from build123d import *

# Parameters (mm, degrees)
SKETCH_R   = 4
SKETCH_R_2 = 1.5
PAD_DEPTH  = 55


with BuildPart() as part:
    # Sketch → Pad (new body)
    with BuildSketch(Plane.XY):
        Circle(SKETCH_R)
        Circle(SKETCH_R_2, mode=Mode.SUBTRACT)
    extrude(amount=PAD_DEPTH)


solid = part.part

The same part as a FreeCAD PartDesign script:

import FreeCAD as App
import Part
import Sketcher

doc = App.newDocument("Part")
params = doc.addObject("Spreadsheet::Sheet", "Params")
for row, (alias, value) in enumerate([
    ("sketch1_diameter", "8 mm"),
    ("sketch1_diameter2", "3 mm"),
    ("pad1_length", "55 mm"),
], start=1):
    params.set(f"A{row}", alias)
    params.set(f"B{row}", "=" + value)
    params.setAlias(f"B{row}", alias)

body = doc.addObject("PartDesign::Body", "Body")

sketch1 = body.newObject("Sketcher::SketchObject", "Sketch")
sketch1.AttachmentSupport = (doc.getObject("XY_Plane"), [""])
sketch1.MapMode = "FlatFace"
sketch1.addGeometry(Part.Circle(App.Vector(0, 0, 0), App.Vector(0, 0, 1), 4), False)
sketch1.addGeometry(Part.Circle(App.Vector(0, 0, 0), App.Vector(0, 0, 1), 1.5), False)
sketch1.addConstraint(Sketcher.Constraint("Coincident", 0, 3, -1, 1))
sketch1.addConstraint(Sketcher.Constraint("Coincident", 1, 3, -1, 1))
sketch1.addConstraint(Sketcher.Constraint("Diameter", 0, 8.0))
sketch1.addConstraint(Sketcher.Constraint("Diameter", 1, 3.0))
sketch1.setExpression("Constraints[2]", "Params.sketch1_diameter")
sketch1.setExpression("Constraints[3]", "Params.sketch1_diameter2")
pad1 = body.newObject("PartDesign::Pad", "Pad")
pad1.Profile = sketch1
pad1.setExpression("Length", "Params.pad1_length")

doc.recompute()
